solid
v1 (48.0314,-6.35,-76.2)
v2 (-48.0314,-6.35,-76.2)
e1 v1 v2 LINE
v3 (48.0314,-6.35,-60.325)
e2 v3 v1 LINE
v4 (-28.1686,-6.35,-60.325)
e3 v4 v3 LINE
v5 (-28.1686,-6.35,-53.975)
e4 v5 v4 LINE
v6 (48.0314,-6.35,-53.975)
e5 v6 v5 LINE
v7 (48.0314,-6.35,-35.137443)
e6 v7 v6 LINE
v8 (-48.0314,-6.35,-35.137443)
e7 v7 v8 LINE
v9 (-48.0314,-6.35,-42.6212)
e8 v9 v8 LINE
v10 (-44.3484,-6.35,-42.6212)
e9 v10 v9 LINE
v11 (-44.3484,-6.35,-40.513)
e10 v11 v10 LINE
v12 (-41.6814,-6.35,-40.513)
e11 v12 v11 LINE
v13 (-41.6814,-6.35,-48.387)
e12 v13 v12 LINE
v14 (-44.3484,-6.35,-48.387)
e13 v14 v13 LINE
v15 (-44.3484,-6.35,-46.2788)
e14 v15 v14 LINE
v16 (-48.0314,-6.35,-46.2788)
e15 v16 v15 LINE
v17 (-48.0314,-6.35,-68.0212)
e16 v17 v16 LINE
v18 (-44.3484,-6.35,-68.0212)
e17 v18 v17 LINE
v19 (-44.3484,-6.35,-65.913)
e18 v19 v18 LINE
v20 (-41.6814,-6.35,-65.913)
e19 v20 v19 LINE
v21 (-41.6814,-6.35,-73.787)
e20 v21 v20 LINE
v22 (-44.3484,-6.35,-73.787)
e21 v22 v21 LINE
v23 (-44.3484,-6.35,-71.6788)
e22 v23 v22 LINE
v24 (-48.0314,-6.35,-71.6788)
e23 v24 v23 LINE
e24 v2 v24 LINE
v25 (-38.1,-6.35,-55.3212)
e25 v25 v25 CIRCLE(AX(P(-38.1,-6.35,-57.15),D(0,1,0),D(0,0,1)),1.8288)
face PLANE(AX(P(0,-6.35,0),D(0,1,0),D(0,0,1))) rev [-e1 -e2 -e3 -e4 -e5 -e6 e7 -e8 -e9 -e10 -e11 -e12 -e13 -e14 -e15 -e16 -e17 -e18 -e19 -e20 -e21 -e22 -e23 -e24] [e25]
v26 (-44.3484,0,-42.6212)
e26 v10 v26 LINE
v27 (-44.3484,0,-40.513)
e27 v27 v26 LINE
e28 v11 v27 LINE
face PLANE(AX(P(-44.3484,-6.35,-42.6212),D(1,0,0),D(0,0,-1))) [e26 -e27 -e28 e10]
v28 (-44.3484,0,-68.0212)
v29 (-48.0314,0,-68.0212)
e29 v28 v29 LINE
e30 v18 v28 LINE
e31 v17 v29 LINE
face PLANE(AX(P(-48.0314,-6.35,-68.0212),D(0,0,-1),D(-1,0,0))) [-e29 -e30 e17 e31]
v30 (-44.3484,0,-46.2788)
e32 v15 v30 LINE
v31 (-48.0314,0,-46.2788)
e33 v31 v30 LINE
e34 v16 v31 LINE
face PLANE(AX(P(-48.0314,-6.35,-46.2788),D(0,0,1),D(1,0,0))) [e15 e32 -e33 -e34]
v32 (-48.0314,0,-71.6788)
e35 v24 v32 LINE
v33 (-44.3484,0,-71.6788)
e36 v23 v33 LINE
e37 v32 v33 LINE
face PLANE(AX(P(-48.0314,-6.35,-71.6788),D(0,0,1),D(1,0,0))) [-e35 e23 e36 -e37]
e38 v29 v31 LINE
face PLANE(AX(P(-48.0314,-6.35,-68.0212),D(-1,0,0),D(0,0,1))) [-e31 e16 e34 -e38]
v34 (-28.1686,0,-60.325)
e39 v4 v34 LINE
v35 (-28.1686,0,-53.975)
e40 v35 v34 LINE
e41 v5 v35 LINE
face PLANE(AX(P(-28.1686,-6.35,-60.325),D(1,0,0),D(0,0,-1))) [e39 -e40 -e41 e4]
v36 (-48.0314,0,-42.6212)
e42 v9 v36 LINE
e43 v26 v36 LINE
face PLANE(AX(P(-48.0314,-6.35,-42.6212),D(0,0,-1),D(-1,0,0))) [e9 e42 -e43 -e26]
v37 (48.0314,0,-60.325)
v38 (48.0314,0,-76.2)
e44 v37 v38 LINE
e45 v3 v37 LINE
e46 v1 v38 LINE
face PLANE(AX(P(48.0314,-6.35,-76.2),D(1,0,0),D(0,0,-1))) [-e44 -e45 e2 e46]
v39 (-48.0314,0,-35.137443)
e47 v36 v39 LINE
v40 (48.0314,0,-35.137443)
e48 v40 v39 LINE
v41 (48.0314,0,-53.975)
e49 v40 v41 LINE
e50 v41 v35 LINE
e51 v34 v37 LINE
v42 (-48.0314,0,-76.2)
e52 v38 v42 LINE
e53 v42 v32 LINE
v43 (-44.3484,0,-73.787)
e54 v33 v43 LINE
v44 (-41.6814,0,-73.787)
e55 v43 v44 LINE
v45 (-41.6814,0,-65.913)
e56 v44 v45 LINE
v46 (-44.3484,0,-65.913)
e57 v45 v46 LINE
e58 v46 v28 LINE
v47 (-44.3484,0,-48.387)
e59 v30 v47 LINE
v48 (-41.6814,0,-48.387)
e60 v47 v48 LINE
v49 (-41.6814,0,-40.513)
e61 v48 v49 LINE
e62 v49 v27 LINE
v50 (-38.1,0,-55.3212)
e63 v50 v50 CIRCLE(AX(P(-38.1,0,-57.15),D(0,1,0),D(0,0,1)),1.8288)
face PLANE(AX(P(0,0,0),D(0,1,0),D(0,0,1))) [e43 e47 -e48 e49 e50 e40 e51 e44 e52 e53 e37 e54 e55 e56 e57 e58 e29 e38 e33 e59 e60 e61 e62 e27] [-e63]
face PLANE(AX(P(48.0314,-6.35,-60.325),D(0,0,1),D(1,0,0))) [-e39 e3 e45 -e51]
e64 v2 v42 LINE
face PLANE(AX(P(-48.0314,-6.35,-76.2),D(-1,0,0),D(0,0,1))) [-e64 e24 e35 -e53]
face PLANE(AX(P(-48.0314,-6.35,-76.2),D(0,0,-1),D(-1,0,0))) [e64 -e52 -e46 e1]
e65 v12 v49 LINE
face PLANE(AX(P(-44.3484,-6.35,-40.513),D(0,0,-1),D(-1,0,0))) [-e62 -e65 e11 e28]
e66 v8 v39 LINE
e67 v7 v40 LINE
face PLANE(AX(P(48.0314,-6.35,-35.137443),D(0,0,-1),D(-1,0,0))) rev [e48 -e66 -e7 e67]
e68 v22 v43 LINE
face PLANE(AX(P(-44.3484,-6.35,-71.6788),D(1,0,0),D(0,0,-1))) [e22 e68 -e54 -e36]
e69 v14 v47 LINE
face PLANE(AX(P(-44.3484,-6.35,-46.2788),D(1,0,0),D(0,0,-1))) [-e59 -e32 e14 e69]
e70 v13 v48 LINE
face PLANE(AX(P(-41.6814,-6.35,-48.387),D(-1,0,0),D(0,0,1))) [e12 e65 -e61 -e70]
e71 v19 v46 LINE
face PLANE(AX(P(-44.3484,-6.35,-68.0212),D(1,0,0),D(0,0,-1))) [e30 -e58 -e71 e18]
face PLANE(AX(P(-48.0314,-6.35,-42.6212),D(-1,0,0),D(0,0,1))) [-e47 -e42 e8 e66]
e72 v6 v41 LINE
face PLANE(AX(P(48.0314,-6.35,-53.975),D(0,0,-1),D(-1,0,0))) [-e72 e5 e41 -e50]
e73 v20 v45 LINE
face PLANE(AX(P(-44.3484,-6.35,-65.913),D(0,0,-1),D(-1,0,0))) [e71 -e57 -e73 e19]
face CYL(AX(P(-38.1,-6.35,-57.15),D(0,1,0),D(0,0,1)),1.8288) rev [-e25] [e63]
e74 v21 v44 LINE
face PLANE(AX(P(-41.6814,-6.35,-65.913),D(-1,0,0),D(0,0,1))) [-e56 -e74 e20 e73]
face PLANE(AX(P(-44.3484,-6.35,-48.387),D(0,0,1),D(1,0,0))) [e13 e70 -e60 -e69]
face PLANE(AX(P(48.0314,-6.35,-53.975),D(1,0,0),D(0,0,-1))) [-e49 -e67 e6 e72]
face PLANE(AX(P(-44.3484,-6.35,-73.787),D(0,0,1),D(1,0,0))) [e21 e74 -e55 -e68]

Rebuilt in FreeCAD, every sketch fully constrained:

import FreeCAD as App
import Part
import Sketcher
Q = App.Units.Quantity

doc = App.newDocument("Part")
params = doc.addObject("Spreadsheet::Sheet", "Params")
for row, (alias, value) in enumerate([
    ("sketch1_width", "3 in"),
    ("sketch1_diameter", "0.144 in"),
    ("sketch1_height", "0.31 in"),
    ("sketch1_height2", "0.25 in"),
    ("sketch1_width2", "3.782 in"),
    ("pad1_length", "0.25 in"),
    ("sketch2_width", "3.782 in"),
], start=1):
    params.set(f"A{row}", alias)
    params.set(f"B{row}", "=" + value)
    params.setAlias(f"B{row}", alias)

body = doc.addObject("PartDesign::Body", "Body")

sketch1 = body.newObject("Sketcher::SketchObject", "Sketch")
sketch1.AttachmentSupport = (doc.getObject("XZ_Plane"), [""])
sketch1.MapMode = "FlatFace"
sketch1.addGeometry([
    Part.LineSegment(App.Vector(48, -76.2, 0), App.Vector(-48, -76.2, 0)),
    Part.LineSegment(App.Vector(-48, -76.2, 0), App.Vector(-48, -71.7, 0)),
    Part.LineSegment(App.Vector(-48, -71.7, 0), App.Vector(-44.3, -71.7, 0)),
    Part.LineSegment(App.Vector(-44.3, -71.7, 0), App.Vector(-44.3, -73.8, 0)),
    Part.LineSegment(App.Vector(-44.3, -73.8, 0), App.Vector(-41.7, -73.8, 0)),
    Part.LineSegment(App.Vector(-41.7, -73.8, 0), App.Vector(-41.7, -65.9, 0)),
    Part.LineSegment(App.Vector(-41.7, -65.9, 0), App.Vector(-44.3, -65.9, 0)),
    Part.LineSegment(App.Vector(-44.3, -65.9, 0), App.Vector(-44.3, -68, 0)),
    Part.LineSegment(App.Vector(-44.3, -68, 0), App.Vector(-48, -68, 0)),
    Part.LineSegment(App.Vector(-48, -68, 0), App.Vector(-48, -46.3, 0)),
    Part.LineSegment(App.Vector(-48, -46.3, 0), App.Vector(-44.3, -46.3, 0)),
    Part.LineSegment(App.Vector(-44.3, -46.3, 0), App.Vector(-44.3, -48.4, 0)),
    Part.LineSegment(App.Vector(-44.3, -48.4, 0), App.Vector(-41.7, -48.4, 0)),
    Part.LineSegment(App.Vector(-41.7, -48.4, 0), App.Vector(-41.7, -40.5, 0)),
    Part.LineSegment(App.Vector(-41.7, -40.5, 0), App.Vector(-44.3, -40.5, 0)),
    Part.LineSegment(App.Vector(-44.3, -40.5, 0), App.Vector(-44.3, -42.6, 0)),
    Part.LineSegment(App.Vector(-44.3, -42.6, 0), App.Vector(-48, -42.6, 0)),
    Part.LineSegment(App.Vector(-48, -42.6, 0), App.Vector(-48, -8.2, 0)),
    Part.LineSegment(App.Vector(-48, -8.2, 0), App.Vector(-44.3, -8.2, 0)),
    Part.LineSegment(App.Vector(-44.3, -8.2, 0), App.Vector(-44.3, -10.3, 0)),
    Part.LineSegment(App.Vector(-44.3, -10.3, 0), App.Vector(-41.7, -10.3, 0)),
    Part.LineSegment(App.Vector(-41.7, -10.3, 0), App.Vector(-41.7, -2.4, 0)),
    Part.LineSegment(App.Vector(-41.7, -2.4, 0), App.Vector(-44.3, -2.4, 0)),
    Part.LineSegment(App.Vector(-44.3, -2.4, 0), App.Vector(-44.3, -4.5, 0)),
    Part.LineSegment(App.Vector(-44.3, -4.5, 0), App.Vector(-48, -4.5, 0)),
    Part.LineSegment(App.Vector(-48, -4.5, 0), App.Vector(-48, 29.9, 0)),
    Part.LineSegment(App.Vector(-48, 29.9, 0), App.Vector(-44.3, 29.9, 0)),
    Part.LineSegment(App.Vector(-44.3, 29.9, 0), App.Vector(-44.3, 27.8, 0)),
    Part.LineSegment(App.Vector(-44.3, 27.8, 0), App.Vector(-41.7, 27.8, 0)),
    Part.LineSegment(App.Vector(-41.7, 27.8, 0), App.Vector(-41.7, 35.7, 0)),
    Part.LineSegment(App.Vector(-41.7, 35.7, 0), App.Vector(-44.3, 35.7, 0)),
    Part.LineSegment(App.Vector(-44.3, 35.7, 0), App.Vector(-44.3, 33.6, 0)),
    Part.LineSegment(App.Vector(-44.3, 33.6, 0), App.Vector(-48, 33.6, 0)),
    Part.LineSegment(App.Vector(-48, 33.6, 0), App.Vector(-48, 76.2, 0)),
    Part.LineSegment(App.Vector(-48, 76.2, 0), App.Vector(48, 76.2, 0)),
    Part.LineSegment(App.Vector(48, 76.2, 0), App.Vector(48, 60.3, 0)),
    Part.LineSegment(App.Vector(48, 60.3, 0), App.Vector(-28.2, 60.3, 0)),
    Part.LineSegment(App.Vector(-28.2, 60.3, 0), App.Vector(-28.2, 54, 0)),
    Part.LineSegment(App.Vector(-28.2, 54, 0), App.Vector(48, 54, 0)),
    Part.LineSegment(App.Vector(48, 54, 0), App.Vector(48, 22.2, 0)),
    Part.LineSegment(App.Vector(48, 22.2, 0), App.Vector(-28.2, 22.2, 0)),
    Part.LineSegment(App.Vector(-28.2, 22.2, 0), App.Vector(-28.2, 15.9, 0)),
    Part.LineSegment(App.Vector(-28.2, 15.9, 0), App.Vector(48, 15.9, 0)),
    Part.LineSegment(App.Vector(48, 15.9, 0), App.Vector(48, -15.9, 0)),
    Part.LineSegment(App.Vector(48, -15.9, 0), App.Vector(-28.2, -15.9, 0)),
    Part.LineSegment(App.Vector(-28.2, -15.9, 0), App.Vector(-28.2, -22.2, 0)),
    Part.LineSegment(App.Vector(-28.2, -22.2, 0), App.Vector(48, -22.2, 0)),
    Part.LineSegment(App.Vector(48, -22.2, 0), App.Vector(48, -54, 0)),
    Part.LineSegment(App.Vector(48, -54, 0), App.Vector(-28.2, -54, 0)),
    Part.LineSegment(App.Vector(-28.2, -54, 0), App.Vector(-28.2, -60.3, 0)),
    Part.LineSegment(App.Vector(-28.2, -60.3, 0), App.Vector(48, -60.3, 0)),
    Part.LineSegment(App.Vector(48, -60.3, 0), App.Vector(48, -76.2, 0)),
    Part.Circle(App.Vector(-38.1, 19.1, 0), App.Vector(0, 0, 1), 1.8),
    Part.Circle(App.Vector(-38.1, -6.3, 0), App.Vector(0, 0, 1), 1.8),
    Part.Circle(App.Vector(-38.1, -31.8, 0), App.Vector(0, 0, 1), 1.8),
    Part.Circle(App.Vector(-38.1, -57.1, 0), App.Vector(0, 0, 1), 1.8),
], False)
sketch1.addConstraint([
    Sketcher.Constraint("Coincident", 0, 2, 1, 1),
    Sketcher.Constraint("Coincident", 1, 2, 2, 1),
    Sketcher.Constraint("Coincident", 2, 2, 3, 1),
    Sketcher.Constraint("Coincident", 3, 2, 4, 1),
    Sketcher.Constraint("Coincident", 4, 2, 5, 1),
    Sketcher.Constraint("Coincident", 5, 2, 6, 1),
    Sketcher.Constraint("Coincident", 6, 2, 7, 1),
    Sketcher.Constraint("Coincident", 7, 2, 8, 1),
    Sketcher.Constraint("Coincident", 8, 2, 9, 1),
    Sketcher.Constraint("Coincident", 9, 2, 10, 1),
    Sketcher.Constraint("Coincident", 10, 2, 11, 1),
    Sketcher.Constraint("Coincident", 11, 2, 12, 1),
    Sketcher.Constraint("Coincident", 12, 2, 13, 1),
    Sketcher.Constraint("Coincident", 13, 2, 14, 1),
    Sketcher.Constraint("Coincident", 14, 2, 15, 1),
    Sketcher.Constraint("Coincident", 15, 2, 16, 1),
    Sketcher.Constraint("Coincident", 16, 2, 17, 1),
    Sketcher.Constraint("Coincident", 17, 2, 18, 1),
    Sketcher.Constraint("Coincident", 18, 2, 19, 1),
    Sketcher.Constraint("Coincident", 19, 2, 20, 1),
    Sketcher.Constraint("Coincident", 20, 2, 21, 1),
    Sketcher.Constraint("Coincident", 21, 2, 22, 1),
    Sketcher.Constraint("Coincident", 22, 2, 23, 1),
    Sketcher.Constraint("Coincident", 23, 2, 24, 1),
    Sketcher.Constraint("Coincident", 24, 2, 25, 1),
    Sketcher.Constraint("Coincident", 25, 2, 26, 1),
    Sketcher.Constraint("Coincident", 26, 2, 27, 1),
    Sketcher.Constraint("Coincident", 27, 2, 28, 1),
    Sketcher.Constraint("Coincident", 28, 2, 29, 1),
    Sketcher.Constraint("Coincident", 29, 2, 30, 1),
    Sketcher.Constraint("Coincident", 30, 2, 31, 1),
    Sketcher.Constraint("Coincident", 31, 2, 32, 1),
    Sketcher.Constraint("Coincident", 32, 2, 33, 1),
    Sketcher.Constraint("Coincident", 33, 2, 34, 1),
    Sketcher.Constraint("Coincident", 34, 2, 35, 1),
    Sketcher.Constraint("Coincident", 35, 2, 36, 1),
    Sketcher.Constraint("Coincident", 36, 2, 37, 1),
    Sketcher.Constraint("Coincident", 37, 2, 38, 1),
    Sketcher.Constraint("Coincident", 38, 2, 39, 1),
    Sketcher.Constraint("Coincident", 39, 2, 40, 1),
    Sketcher.Constraint("Coincident", 40, 2, 41, 1),
    Sketcher.Constraint("Coincident", 41, 2, 42, 1),
    Sketcher.Constraint("Coincident", 42, 2, 43, 1),
    Sketcher.Constraint("Coincident", 43, 2, 44, 1),
    Sketcher.Constraint("Coincident", 44, 2, 45, 1),
    Sketcher.Constraint("Coincident", 45, 2, 46, 1),
    Sketcher.Constraint("Coincident", 46, 2, 47, 1),
    Sketcher.Constraint("Coincident", 47, 2, 48, 1),
    Sketcher.Constraint("Coincident", 48, 2, 49, 1),
    Sketcher.Constraint("Coincident", 49, 2, 50, 1),
    Sketcher.Constraint("Coincident", 50, 2, 51, 1),
    Sketcher.Constraint("Coincident", 51, 2, 0, 1),
    Sketcher.Constraint("Horizontal", 0),
    Sketcher.Constraint("Vertical", 1),
    Sketcher.Constraint("Horizontal", 2),
    Sketcher.Constraint("Vertical", 3),
    Sketcher.Constraint("Horizontal", 4),
    Sketcher.Constraint("Vertical", 5),
    Sketcher.Constraint("Horizontal", 6),
    Sketcher.Constraint("Vertical", 7),
    Sketcher.Constraint("Horizontal", 8),
    Sketcher.Constraint("Vertical", 9),
    Sketcher.Constraint("Horizontal", 10),
    Sketcher.Constraint("Vertical", 11),
    Sketcher.Constraint("Horizontal", 12),
    Sketcher.Constraint("Vertical", 13),
    Sketcher.Constraint("Horizontal", 14),
    Sketcher.Constraint("Vertical", 15),
    Sketcher.Constraint("Horizontal", 16),
    Sketcher.Constraint("Vertical", 17),
    Sketcher.Constraint("Horizontal", 18),
    Sketcher.Constraint("Vertical", 19),
    Sketcher.Constraint("Horizontal", 20),
    Sketcher.Constraint("Vertical", 21),
    Sketcher.Constraint("Horizontal", 22),
    Sketcher.Constraint("Vertical", 23),
    Sketcher.Constraint("Horizontal", 24),
    Sketcher.Constraint("Vertical", 25),
    Sketcher.Constraint("Horizontal", 26),
    Sketcher.Constraint("Vertical", 27),
    Sketcher.Constraint("Horizontal", 28),
    Sketcher.Constraint("Vertical", 29),
    Sketcher.Constraint("Horizontal", 30),
    Sketcher.Constraint("Vertical", 31),
    Sketcher.Constraint("Horizontal", 32),
    Sketcher.Constraint("Vertical", 33),
    Sketcher.Constraint("Horizontal", 34),
    Sketcher.Constraint("Vertical", 35),
    Sketcher.Constraint("Horizontal", 36),
    Sketcher.Constraint("Vertical", 37),
    Sketcher.Constraint("Horizontal", 38),
    Sketcher.Constraint("Vertical", 39),
    Sketcher.Constraint("Horizontal", 40),
    Sketcher.Constraint("Vertical", 41),
    Sketcher.Constraint("Horizontal", 42),
    Sketcher.Constraint("Vertical", 43),
    Sketcher.Constraint("Horizontal", 44),
    Sketcher.Constraint("Vertical", 45),
    Sketcher.Constraint("Horizontal", 46),
    Sketcher.Constraint("Vertical", 47),
    Sketcher.Constraint("Horizontal", 48),
    Sketcher.Constraint("Vertical", 49),
    Sketcher.Constraint("Horizontal", 50),
    Sketcher.Constraint("Vertical", 51),
    Sketcher.Constraint("Equal", 52, 53),
    Sketcher.Constraint("Equal", 53, 54),
    Sketcher.Constraint("Equal", 54, 55),
    Sketcher.Constraint("Symmetric", 0, 2, 34, 2, -1, 1),
    Sketcher.Constraint("Symmetric", 41, 2, 44, 2, -1),
    Sketcher.Constraint("Symmetric", 39, 2, 46, 2, -1),
    Sketcher.Constraint("Symmetric", 37, 2, 48, 2, -1),
    Sketcher.Constraint("Symmetric", 35, 2, 50, 2, -1),
    Sketcher.Constraint("Vertical", 52, 3, 53, 3),
    Sketcher.Constraint("Vertical", 53, 3, 54, 3),
    Sketcher.Constraint("Vertical", 54, 3, 55, 3),
    Sketcher.Constraint("Vertical", 3, 2, 6, 2),
    Sketcher.Constraint("Vertical", 1, 2, 8, 2),
    Sketcher.Constraint("Vertical", 7, 2, 10, 2),
    Sketcher.Constraint("Vertical", 5, 2, 12, 2),
    Sketcher.Constraint("Vertical", 11, 2, 14, 2),
    Sketcher.Constraint("Vertical", 9, 2, 16, 2),
    Sketcher.Constraint("Vertical", 15, 2, 18, 2),
    Sketcher.Constraint("Vertical", 13, 2, 20, 2),
    Sketcher.Constraint("Vertical", 19, 2, 22, 2),
    Sketcher.Constraint("Vertical", 17, 2, 24, 2),
    Sketcher.Constraint("Vertical", 23, 2, 26, 2),
    Sketcher.Constraint("Vertical", 21, 2, 28, 2),
    Sketcher.Constraint("Vertical", 27, 2, 30, 2),
    Sketcher.Constraint("Vertical", 25, 2, 32, 2),
    Sketcher.Constraint("Vertical", 35, 2, 38, 2),
    Sketcher.Constraint("Vertical", 37, 2, 40, 2),
    Sketcher.Constraint("Vertical", 39, 2, 42, 2),
    Sketcher.Constraint("Equal", 3, 7),
    Sketcher.Constraint("Equal", 7, 11),
    Sketcher.Constraint("Equal", 5, 13),
    Sketcher.Constraint("Equal", 11, 15),
    Sketcher.Constraint("Equal", 15, 19),
    Sketcher.Constraint("Equal", 13, 21),
    Sketcher.Constraint("Equal", 19, 23),
    Sketcher.Constraint("Equal", 17, 25),
    Sketcher.Constraint("Equal", 23, 27),
    Sketcher.Constraint("Equal", 21, 29),
    Sketcher.Constraint("Equal", 27, 31),
    Sketcher.Constraint("Equal", 37, 41),
    Sketcher.Constraint("Equal", 39, 43),
    Sketcher.Constraint("DistanceX", 36, 2, 36, 1, Q("3 in")),
    Sketcher.Constraint("Diameter", 52, Q("0.144 in")),
    Sketcher.Constraint("DistanceY", 0, 2, -1, 1, Q("3 in")),
    Sketcher.Constraint("DistanceY", 53, 3, 52, 3, Q("1 in")),
    Sketcher.Constraint("DistanceY", 54, 3, 53, 3, Q("1 in")),
    Sketcher.Constraint("DistanceY", 55, 3, 54, 3, Q("1 in")),
    Sketcher.Constraint("DistanceY", 43, 2, 35, 2, Q("3 in")),
    Sketcher.Constraint("DistanceY", 5, 1, 5, 2, Q("0.31 in")),
    Sketcher.Constraint("DistanceY", 37, 2, 37, 1, Q("0.25 in")),
    Sketcher.Constraint("DistanceX", 52, 3, -1, 1, Q("1.5 in")),
    Sketcher.Constraint("DistanceX", 0, 2, 0, 1, Q("3.782 in")),
    Sketcher.Constraint("DistanceX", 2, 1, 2, 2, Q("0.145 in")),
    Sketcher.Constraint("DistanceX", 4, 1, 4, 2, Q("0.105 in")),
    Sketcher.Constraint("DistanceY", 1, 1, 1, 2, Q("0.178 in")),
    Sketcher.Constraint("DistanceY", 3, 2, 3, 1, Q("0.083 in")),
    Sketcher.Constraint("DistanceY", 9, 1, 9, 2, Q("0.856 in")),
    Sketcher.Constraint("DistanceY", 17, 1, 17, 2, Q("1.356 in")),
    Sketcher.Constraint("DistanceY", -1, 1, 52, 3, Q("0.75 in")),
])
sketch1.setExpression("Constraints[145]", "Params.sketch1_width")
sketch1.setExpression("Constraints[146]", "Params.sketch1_diameter")
sketch1.setExpression("Constraints[152]", "Params.sketch1_height")
sketch1.setExpression("Constraints[153]", "Params.sketch1_height2")
sketch1.setExpression("Constraints[155]", "Params.sketch1_width2")
pad1 = body.newObject("PartDesign::Pad", "Pad")
pad1.Profile = sketch1
pad1.setExpression("Length", "Params.pad1_length")

sketch2 = body.newObject("Sketcher::SketchObject", "Sketch001")
sketch2.AttachmentSupport = (doc.getObject("XZ_Plane"), [""])
sketch2.MapMode = "FlatFace"
sketch2.addGeometry([
    Part.LineSegment(App.Vector(-48, -35, 0), App.Vector(-48, 76, 0)),
    Part.LineSegment(App.Vector(-48, 76, 0), App.Vector(48, 76, 0)),
    Part.LineSegment(App.Vector(48, 76, 0), App.Vector(48, -35, 0)),
    Part.LineSegment(App.Vector(48, -35, 0), App.Vector(-48, -35, 0)),
], False)
sketch2.addConstraint([
    Sketcher.Constraint("Coincident", 0, 2, 1, 1),
    Sketcher.Constraint("Coincident", 1, 2, 2, 1),
    Sketcher.Constraint("Coincident", 2, 2, 3, 1),
    Sketcher.Constraint("Coincident", 3, 2, 0, 1),
    Sketcher.Constraint("Vertical", 0),
    Sketcher.Constraint("Horizontal", 1),
    Sketcher.Constraint("Vertical", 2),
    Sketcher.Constraint("Horizontal", 3),
    Sketcher.Constraint("DistanceY", -1, 1, 0, 2, Q("3 in")),
    Sketcher.Constraint("DistanceX", 1, 1, 1, 2, Q("3.782 in")),
    Sketcher.Constraint("DistanceX", 0, 2, -1, 1, Q("1.891 in")),
    Sketcher.Constraint("DistanceY", 0, 1, 0, 2, 111.337443),
])
sketch2.setExpression("Constraints[9]", "Params.sketch2_width")
pocket1 = body.newObject("PartDesign::Pocket", "Pocket")
pocket1.Profile = sketch2
pocket1.Type = "ThroughAll"
pocket1.Midplane = True

doc.recompute()
